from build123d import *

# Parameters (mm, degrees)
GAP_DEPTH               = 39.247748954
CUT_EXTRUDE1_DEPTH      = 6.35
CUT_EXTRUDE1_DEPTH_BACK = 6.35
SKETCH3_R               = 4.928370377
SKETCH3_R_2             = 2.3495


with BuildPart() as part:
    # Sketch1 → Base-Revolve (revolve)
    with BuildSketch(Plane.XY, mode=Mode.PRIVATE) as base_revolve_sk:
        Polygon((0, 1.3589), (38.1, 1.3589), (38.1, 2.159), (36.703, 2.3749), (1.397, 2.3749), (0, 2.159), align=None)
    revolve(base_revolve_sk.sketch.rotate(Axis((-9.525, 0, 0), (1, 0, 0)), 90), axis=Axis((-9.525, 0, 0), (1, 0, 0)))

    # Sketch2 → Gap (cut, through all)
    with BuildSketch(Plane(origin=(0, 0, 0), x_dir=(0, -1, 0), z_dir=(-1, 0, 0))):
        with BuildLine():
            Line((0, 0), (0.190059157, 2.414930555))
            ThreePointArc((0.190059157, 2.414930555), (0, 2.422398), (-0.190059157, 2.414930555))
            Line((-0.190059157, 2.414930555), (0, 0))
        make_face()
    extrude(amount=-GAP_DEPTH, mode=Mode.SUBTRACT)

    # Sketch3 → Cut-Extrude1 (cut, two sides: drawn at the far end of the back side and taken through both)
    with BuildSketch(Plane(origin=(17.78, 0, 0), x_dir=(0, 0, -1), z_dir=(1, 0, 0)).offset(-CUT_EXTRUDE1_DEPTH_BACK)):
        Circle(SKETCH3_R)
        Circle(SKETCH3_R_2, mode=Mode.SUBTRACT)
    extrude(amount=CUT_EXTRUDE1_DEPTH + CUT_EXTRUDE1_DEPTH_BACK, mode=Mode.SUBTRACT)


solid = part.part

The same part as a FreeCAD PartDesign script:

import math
import FreeCAD as App
import Part
import Sketcher
from FreeCAD import Vector
Q = App.Units.Quantity


def add_polygon(sketch, points):
    """Adds a closed chain of lines whose ends are joined by coincident constraints."""
    first, n = sketch.GeometryCount, len(points)
    for a, b in zip(points, points[1:] + points[:1]):
        sketch.addGeometry(Part.LineSegment(App.Vector(*a, 0), App.Vector(*b, 0)), False)
    for i in range(n):
        sketch.addConstraint(Sketcher.Constraint("Coincident", first + i, 2, first + (i + 1) % n, 1))

doc = App.newDocument("Part")
body = doc.addObject("PartDesign::Body", "Body")

sketch1 = body.newObject("Sketcher::SketchObject", "Sketch")
sketch1.AttachmentSupport = (doc.getObject("XY_Plane"), [""])
sketch1.MapMode = "FlatFace"
add_polygon(sketch1, [(0, 1.3589), (38.1, 1.3589), (38.1, 2.159), (36.703, 2.3749), (1.397, 2.3749), (0, 2.159)])
sketch1.addConstraint([
    Sketcher.Constraint("Horizontal", 0),
    Sketcher.Constraint("Vertical", 1),
    Sketcher.Constraint("Horizontal", 3),
    Sketcher.Constraint("Vertical", 5),
    Sketcher.Constraint("PointOnObject", 4, 2, -2),
    Sketcher.Constraint("Horizontal", 1, 2, 4, 2),
    Sketcher.Constraint("Equal", 2, 4),
    Sketcher.Constraint("DistanceX", 0, 1, 0, 2, Q("1.5 in")),
    Sketcher.Constraint("DistanceX", 3, 2, 3, 1, Q("1.39 in")),
    Sketcher.Constraint("DistanceY", 0, 2, 2, 2, Q("0.04 in")),
    Sketcher.Constraint("DistanceY", 1, 1, 1, 2, Q("0.0315 in")),
    Sketcher.Constraint("DistanceY", -1, 1, 1, 2, Q("0.085 in")),
])
revolution = body.newObject("PartDesign::Revolution", "Revolution")
revolution.Profile = sketch1
revolution.ReferenceAxis = (sketch1, ["H_Axis"])
revolution.Angle = 360

sketch2 = body.newObject("Sketcher::SketchObject", "Sketch001")
sketch2.AttachmentSupport = (doc.getObject("YZ_Plane"), [""])
sketch2.MapMode = "FlatFace"
sketch2.addGeometry([
    Part.LineSegment(Vector(0, 0, 0), Vector(-0.190059, 2.414931, 0)),
    Part.ArcOfCircle(Part.Circle(Vector(0, 0, 0), Vector(0, 0, 1), 2.422398), math.radians(85.5), math.radians(94.5)),
    Part.LineSegment(Vector(0.190059, 2.414931, 0), Vector(0, 0, 0)),
], False)
sketch2.addConstraint([
    Sketcher.Constraint("Coincident", 0, 2, 1, 2),
    Sketcher.Constraint("Coincident", 1, 1, 2, 1),
    Sketcher.Constraint("Coincident", 2, 2, 0, 1),
    Sketcher.Constraint("Coincident", 1, 3, -1, 1),
    Sketcher.Constraint("Coincident", 2, 2, -1, 1),
    Sketcher.Constraint("Horizontal", 0, 2, 1, 1),
    Sketcher.Constraint("Angle", 0, Q("94.5 deg")),
    Sketcher.Constraint("Radius", 1, 2.422398),
])
pocket1 = body.newObject("PartDesign::Pocket", "Pocket")
pocket1.Profile = sketch2
pocket1.Type = "ThroughAll"
pocket1.Reversed = True

sketch3 = body.newObject("Sketcher::SketchObject", "Sketch002")
sketch3.AttachmentSupport = (doc.getObject("YZ_Plane"), [""])
sketch3.MapMode = "FlatFace"
sketch3.AttachmentOffset = App.Placement(Vector(0, 0, 0.7 * 25.4), App.Rotation())
sketch3.addGeometry([
    Part.Circle(Vector(0, 0, 0), Vector(0, 0, 1), 4.92837),
    Part.Circle(Vector(0, 0, 0), Vector(0, 0, 1), 2.3495),
], False)
sketch3.addConstraint([
    Sketcher.Constraint("Coincident", 0, 3, -1, 1),
    Sketcher.Constraint("Coincident", 1, 3, -1, 1),
    Sketcher.Constraint("Diameter", 1, Q("0.185 in")),
    Sketcher.Constraint("Diameter", 0, 9.856741),
])
pocket2 = body.newObject("PartDesign::Pocket", "Pocket001")
pocket2.Profile = sketch3
pocket2.Type = "TwoLengths"
pocket2.Length = Q("0.25 in")
pocket2.Length2 = Q("0.25 in")
pocket2.Reversed = True

doc.recompute()
